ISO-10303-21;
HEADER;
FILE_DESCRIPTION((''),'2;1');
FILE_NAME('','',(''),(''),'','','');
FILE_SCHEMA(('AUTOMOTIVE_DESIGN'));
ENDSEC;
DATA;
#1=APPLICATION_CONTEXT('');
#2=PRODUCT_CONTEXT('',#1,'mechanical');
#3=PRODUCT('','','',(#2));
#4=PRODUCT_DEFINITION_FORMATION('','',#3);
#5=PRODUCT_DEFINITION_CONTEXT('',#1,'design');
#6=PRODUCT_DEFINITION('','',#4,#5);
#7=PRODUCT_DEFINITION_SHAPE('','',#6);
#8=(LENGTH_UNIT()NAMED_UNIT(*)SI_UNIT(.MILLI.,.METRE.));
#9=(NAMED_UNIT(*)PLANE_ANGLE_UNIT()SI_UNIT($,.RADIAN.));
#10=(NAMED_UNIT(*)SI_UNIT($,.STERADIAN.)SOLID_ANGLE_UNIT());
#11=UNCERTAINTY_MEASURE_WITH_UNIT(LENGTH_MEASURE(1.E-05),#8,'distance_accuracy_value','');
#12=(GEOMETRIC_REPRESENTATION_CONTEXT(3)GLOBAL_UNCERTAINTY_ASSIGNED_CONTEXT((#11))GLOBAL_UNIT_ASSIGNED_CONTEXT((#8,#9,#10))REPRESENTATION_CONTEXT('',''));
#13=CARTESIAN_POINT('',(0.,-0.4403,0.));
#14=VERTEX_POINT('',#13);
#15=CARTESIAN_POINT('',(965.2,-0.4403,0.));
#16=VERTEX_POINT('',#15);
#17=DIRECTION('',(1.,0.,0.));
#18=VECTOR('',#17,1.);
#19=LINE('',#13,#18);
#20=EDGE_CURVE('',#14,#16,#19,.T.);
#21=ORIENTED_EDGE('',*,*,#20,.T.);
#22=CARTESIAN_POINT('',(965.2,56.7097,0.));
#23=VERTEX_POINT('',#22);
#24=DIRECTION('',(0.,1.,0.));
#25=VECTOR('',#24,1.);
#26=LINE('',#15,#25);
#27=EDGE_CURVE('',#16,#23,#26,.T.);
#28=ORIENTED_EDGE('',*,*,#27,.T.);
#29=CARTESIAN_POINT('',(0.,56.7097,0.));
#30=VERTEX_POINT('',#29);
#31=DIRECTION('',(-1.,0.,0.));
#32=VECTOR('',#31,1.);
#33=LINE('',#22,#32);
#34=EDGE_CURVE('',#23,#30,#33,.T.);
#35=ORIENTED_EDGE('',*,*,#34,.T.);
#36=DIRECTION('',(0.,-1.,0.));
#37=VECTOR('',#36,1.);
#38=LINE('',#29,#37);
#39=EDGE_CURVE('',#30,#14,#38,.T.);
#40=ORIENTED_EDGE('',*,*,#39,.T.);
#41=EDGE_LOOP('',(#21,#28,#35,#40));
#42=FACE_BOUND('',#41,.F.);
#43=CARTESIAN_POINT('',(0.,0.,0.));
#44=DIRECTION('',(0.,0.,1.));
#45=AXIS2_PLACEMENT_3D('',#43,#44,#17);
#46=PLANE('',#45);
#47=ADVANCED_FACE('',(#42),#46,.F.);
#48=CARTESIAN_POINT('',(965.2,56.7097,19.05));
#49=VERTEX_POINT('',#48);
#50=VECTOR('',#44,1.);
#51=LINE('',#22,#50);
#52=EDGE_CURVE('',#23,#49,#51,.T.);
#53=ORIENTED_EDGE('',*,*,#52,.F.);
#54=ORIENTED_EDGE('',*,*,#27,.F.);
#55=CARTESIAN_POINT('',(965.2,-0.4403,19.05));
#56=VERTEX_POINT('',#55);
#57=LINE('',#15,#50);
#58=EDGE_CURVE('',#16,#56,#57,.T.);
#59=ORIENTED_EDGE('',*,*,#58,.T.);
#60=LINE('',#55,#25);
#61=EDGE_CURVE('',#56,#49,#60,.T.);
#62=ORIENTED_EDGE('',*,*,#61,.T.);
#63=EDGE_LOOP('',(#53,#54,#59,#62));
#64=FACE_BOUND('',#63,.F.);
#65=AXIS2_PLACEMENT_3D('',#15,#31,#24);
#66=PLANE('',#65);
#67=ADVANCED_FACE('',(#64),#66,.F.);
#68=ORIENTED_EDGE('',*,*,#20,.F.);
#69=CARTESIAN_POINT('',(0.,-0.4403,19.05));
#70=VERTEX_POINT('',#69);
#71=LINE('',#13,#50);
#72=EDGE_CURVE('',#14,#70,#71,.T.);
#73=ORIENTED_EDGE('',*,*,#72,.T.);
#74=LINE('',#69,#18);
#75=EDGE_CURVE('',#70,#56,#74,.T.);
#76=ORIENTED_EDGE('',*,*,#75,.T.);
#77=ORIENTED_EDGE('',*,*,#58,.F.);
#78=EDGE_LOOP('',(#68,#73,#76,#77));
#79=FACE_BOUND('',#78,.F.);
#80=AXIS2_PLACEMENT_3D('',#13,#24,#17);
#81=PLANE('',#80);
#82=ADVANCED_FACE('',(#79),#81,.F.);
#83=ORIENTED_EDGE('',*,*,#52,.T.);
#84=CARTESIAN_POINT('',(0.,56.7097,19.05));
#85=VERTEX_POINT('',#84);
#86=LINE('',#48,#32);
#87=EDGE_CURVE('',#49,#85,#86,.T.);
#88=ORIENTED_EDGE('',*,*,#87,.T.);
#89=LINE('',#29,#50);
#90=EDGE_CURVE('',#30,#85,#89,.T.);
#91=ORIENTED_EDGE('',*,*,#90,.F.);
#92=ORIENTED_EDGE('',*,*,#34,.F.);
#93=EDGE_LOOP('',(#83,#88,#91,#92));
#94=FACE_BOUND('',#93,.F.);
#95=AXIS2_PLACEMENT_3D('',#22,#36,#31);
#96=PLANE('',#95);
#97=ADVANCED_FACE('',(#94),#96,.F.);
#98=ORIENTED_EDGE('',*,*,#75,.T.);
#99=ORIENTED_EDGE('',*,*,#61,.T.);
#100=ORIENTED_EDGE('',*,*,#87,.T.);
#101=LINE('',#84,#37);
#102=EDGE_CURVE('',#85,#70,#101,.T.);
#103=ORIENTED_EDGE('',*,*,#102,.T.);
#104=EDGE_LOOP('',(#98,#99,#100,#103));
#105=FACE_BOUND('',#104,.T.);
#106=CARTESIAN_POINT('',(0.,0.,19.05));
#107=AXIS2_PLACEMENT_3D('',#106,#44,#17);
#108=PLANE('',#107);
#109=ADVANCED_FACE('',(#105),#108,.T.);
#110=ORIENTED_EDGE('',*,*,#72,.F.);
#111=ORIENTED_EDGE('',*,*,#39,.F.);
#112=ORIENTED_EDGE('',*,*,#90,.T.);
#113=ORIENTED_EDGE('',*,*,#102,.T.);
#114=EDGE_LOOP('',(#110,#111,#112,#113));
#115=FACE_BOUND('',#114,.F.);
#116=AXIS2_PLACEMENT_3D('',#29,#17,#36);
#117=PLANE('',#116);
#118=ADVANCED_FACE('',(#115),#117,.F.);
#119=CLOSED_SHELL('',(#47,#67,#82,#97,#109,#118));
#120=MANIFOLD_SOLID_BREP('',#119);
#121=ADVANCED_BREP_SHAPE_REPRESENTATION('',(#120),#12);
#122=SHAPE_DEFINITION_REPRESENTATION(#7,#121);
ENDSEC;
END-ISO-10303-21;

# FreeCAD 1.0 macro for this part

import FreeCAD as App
import Part
import Sketcher
Q = App.Units.Quantity

doc = App.newDocument("Part")
params = doc.addObject("Spreadsheet::Sheet", "Params")
for row, (alias, value) in enumerate([
    ("sketch1_width", "38 in"),
    ("sketch1_height", "2.25 in"),
    ("pad1_length", "0.75 in"),
], start=1):
    params.set(f"A{row}", alias)
    params.set(f"B{row}", "=" + value)
    params.setAlias(f"B{row}", alias)

body = doc.addObject("PartDesign::Body", "Body")

sketch1 = doc.addObject("Sketcher::SketchObject", "Sketch")
body.addObject(sketch1)
sketch1.AttachmentSupport = (doc.XY_Plane, [""])
sketch1.MapMode = "FlatFace"
sketch1.addGeometry([
    Part.LineSegment(App.Vector(965, 0, 0), App.Vector(965, 57, 0)),
    Part.LineSegment(App.Vector(965, 57, 0), App.Vector(0, 57, 0)),
    Part.LineSegment(App.Vector(0, 57, 0), App.Vector(0, 0, 0)),
    Part.LineSegment(App.Vector(0, 0, 0), App.Vector(965, 0, 0)),
], False)
sketch1.addConstraint([
    Sketcher.Constraint("Coincident", 0, 2, 1, 1),
    Sketcher.Constraint("Coincident", 1, 2, 2, 1),
    Sketcher.Constraint("Coincident", 2, 2, 3, 1),
    Sketcher.Constraint("Coincident", 3, 2, 0, 1),
    Sketcher.Constraint("Vertical", 0),
    Sketcher.Constraint("Horizontal", 1),
    Sketcher.Constraint("Vertical", 2),
    Sketcher.Constraint("Horizontal", 3),
    Sketcher.Constraint("PointOnObject", 1, 2, -2),
    Sketcher.Constraint("DistanceX", 1, 2, 1, 1, Q("38 in")),
    Sketcher.Constraint("DistanceY", 0, 1, 0, 2, Q("2.25 in")),
    Sketcher.Constraint("DistanceY", -1, 1, 0, 2, 56.7097),
])
sketch1.setExpression("Constraints[9]", "Params.sketch1_width")
sketch1.setExpression("Constraints[10]", "Params.sketch1_height")
pad1 = doc.addObject("PartDesign::Pad", "Pad")
body.addObject(pad1)
pad1.Profile = sketch1
pad1.setExpression("Length", "Params.pad1_length")

doc.recompute()
